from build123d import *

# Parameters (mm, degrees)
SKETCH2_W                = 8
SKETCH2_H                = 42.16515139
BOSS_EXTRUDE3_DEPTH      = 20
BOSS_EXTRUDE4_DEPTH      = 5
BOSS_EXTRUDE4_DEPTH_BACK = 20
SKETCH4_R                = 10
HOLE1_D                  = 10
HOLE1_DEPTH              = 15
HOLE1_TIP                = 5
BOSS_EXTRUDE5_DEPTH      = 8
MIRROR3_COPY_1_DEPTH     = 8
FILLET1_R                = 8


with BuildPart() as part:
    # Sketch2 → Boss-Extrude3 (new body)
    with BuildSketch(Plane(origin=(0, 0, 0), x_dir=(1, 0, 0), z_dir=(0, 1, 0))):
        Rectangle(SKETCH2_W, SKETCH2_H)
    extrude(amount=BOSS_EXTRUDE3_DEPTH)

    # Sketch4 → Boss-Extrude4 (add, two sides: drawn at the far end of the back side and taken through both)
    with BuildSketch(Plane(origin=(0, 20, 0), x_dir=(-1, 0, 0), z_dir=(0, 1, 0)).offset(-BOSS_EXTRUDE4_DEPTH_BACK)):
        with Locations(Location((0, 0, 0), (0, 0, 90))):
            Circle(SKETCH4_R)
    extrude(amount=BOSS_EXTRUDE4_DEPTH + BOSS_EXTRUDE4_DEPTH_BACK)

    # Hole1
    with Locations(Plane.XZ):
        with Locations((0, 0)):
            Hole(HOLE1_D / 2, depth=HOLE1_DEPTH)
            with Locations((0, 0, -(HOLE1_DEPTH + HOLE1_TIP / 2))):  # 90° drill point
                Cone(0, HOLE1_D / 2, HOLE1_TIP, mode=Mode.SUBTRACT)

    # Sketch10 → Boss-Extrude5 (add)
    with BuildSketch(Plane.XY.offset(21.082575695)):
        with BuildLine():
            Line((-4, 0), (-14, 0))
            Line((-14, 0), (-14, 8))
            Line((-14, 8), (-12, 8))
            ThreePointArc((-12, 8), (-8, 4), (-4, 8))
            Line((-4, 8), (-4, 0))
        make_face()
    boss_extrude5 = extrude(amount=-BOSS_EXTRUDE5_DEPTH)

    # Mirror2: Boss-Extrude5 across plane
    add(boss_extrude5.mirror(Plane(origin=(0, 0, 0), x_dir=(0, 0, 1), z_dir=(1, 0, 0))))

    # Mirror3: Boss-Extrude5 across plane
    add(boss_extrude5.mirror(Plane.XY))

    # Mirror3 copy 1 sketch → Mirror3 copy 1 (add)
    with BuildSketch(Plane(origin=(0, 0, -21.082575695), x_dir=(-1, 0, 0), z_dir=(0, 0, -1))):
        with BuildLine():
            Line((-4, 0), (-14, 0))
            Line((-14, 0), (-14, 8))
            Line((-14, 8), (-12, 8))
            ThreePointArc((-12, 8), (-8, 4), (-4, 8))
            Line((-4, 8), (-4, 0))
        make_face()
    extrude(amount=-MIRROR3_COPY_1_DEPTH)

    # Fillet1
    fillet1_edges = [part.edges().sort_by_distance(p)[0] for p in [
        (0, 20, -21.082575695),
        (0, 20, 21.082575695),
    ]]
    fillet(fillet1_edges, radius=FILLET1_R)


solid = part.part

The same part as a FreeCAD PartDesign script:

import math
import FreeCAD as App
import Part
import Sketcher
Q = App.Units.Quantity


def edges_at(feature, points):
    """Names of the edges that pass closest to the given points."""
    edges = feature.Shape.Edges
    near = lambda p: min(range(len(edges)), key=lambda i: edges[i].distToShape(Part.Vertex(*p))[0])
    return sorted({f"Edge{near(p) + 1}" for p in points})

doc = App.newDocument("Part")
params = doc.addObject("Spreadsheet::Sheet", "Params")
for row, (alias, value) in enumerate([
    ("sketch1_width", "8 mm"),
    ("pad1_length", "20 mm"),
    ("sketch2_diameter", "20 mm"),
    ("pad2_length", "5 mm"),
    ("pad2_length2", "20 mm"),
    ("sketch3_diameter", "10 mm"),
    ("hole_diameter", "10 mm"),
    ("hole_depth", "15 mm"),
    ("sketch4_radius", "4 mm"),
    ("sketch4_width", "10 mm"),
    ("sketch4_height", "8 mm"),
    ("pad3_length", "8 mm"),
    ("sketch5_radius", "4 mm"),
    ("sketch5_width", "10 mm"),
    ("sketch5_height", "8 mm"),
    ("pad4_length", "8 mm"),
    ("fillet_radius", "8 mm"),
], start=1):
    params.set(f"A{row}", alias)
    params.set(f"B{row}", "=" + value)
    params.setAlias(f"B{row}", alias)

body = doc.addObject("PartDesign::Body", "Body")

sketch1 = doc.addObject("Sketcher::SketchObject", "Sketch")
body.addObject(sketch1)
sketch1.AttachmentSupport = (doc.XZ_Plane, [""])
sketch1.MapMode = "FlatFace"
sketch1.addGeometry(Part.LineSegment(App.Vector(-4, -21.082576, 0), App.Vector(-4, 21.082576, 0)), False)
sketch1.addGeometry(Part.LineSegment(App.Vector(-4, 21.082576, 0), App.Vector(4, 21.082576, 0)), False)
sketch1.addGeometry(Part.LineSegment(App.Vector(4, 21.082576, 0), App.Vector(4, -21.082576, 0)), False)
sketch1.addGeometry(Part.LineSegment(App.Vector(4, -21.082576, 0), App.Vector(-4, -21.082576, 0)), False)
sketch1.addConstraint(Sketcher.Constraint("Coincident", 0, 2, 1, 1))
sketch1.addConstraint(Sketcher.Constraint("Coincident", 1, 2, 2, 1))
sketch1.addConstraint(Sketcher.Constraint("Coincident", 2, 2, 3, 1))
sketch1.addConstraint(Sketcher.Constraint("Coincident", 3, 2, 0, 1))
sketch1.addConstraint(Sketcher.Constraint("Vertical", 0))
sketch1.addConstraint(Sketcher.Constraint("Horizontal", 1))
sketch1.addConstraint(Sketcher.Constraint("Vertical", 2))
sketch1.addConstraint(Sketcher.Constraint("Horizontal", 3))
sketch1.addConstraint(Sketcher.Constraint("Symmetric", 0, 2, 2, 2, -1, 1))
sketch1.addConstraint(Sketcher.Constraint("DistanceX", 1, 1, 1, 2, Q("8 mm")))
sketch1.addConstraint(Sketcher.Constraint("DistanceY", 0, 1, 0, 2, Q("42.165151 mm")))
sketch1.setExpression("Constraints[9]", "Params.sketch1_width")
pad1 = doc.addObject("PartDesign::Pad", "Pad")
body.addObject(pad1)
pad1.Profile = sketch1
pad1.setExpression("Length", "Params.pad1_length")
pad1.Reversed = True

sketch2 = doc.addObject("Sketcher::SketchObject", "Sketch001")
body.addObject(sketch2)
sketch2.AttachmentSupport = (doc.XZ_Plane, [""])
sketch2.MapMode = "FlatFace"
sketch2.AttachmentOffset = App.Placement(App.Vector(0, 0, -20), App.Rotation())
sketch2.addGeometry(Part.Circle(App.Vector(0, 0, 0), App.Vector(0, 0, 1), 10), False)
sketch2.addConstraint(Sketcher.Constraint("Coincident", 0, 3, -1, 1))
sketch2.addConstraint(Sketcher.Constraint("Diameter", 0, Q("20 mm")))
sketch2.setExpression("Constraints[1]", "Params.sketch2_diameter")
pad2 = doc.addObject("PartDesign::Pad", "Pad001")
body.addObject(pad2)
pad2.Profile = sketch2
pad2.Type = "TwoLengths"
pad2.setExpression("Length", "Params.pad2_length")
pad2.setExpression("Length2", "Params.pad2_length2")
pad2.Reversed = True

sketch3 = doc.addObject("Sketcher::SketchObject", "Sketch002")
body.addObject(sketch3)
sketch3.AttachmentSupport = (doc.XZ_Plane, [""])
sketch3.MapMode = "FlatFace"
sketch3.addGeometry(Part.Circle(App.Vector(0, 0, 0), App.Vector(0, 0, 1), 5), False)
sketch3.addConstraint(Sketcher.Constraint("Coincident", 0, 3, -1, 1))
sketch3.addConstraint(Sketcher.Constraint("Diameter", 0, Q("10 mm")))
sketch3.setExpression("Constraints[1]", "Params.sketch3_diameter")
doc.recompute()
hole = doc.addObject("PartDesign::Hole", "Hole")
body.addObject(hole)
hole.Profile = sketch3
hole.ThreadType = "None"
hole.setExpression("Diameter", "Params.hole_diameter")
hole.DepthType = "Dimension"
hole.setExpression("Depth", "Params.hole_depth")
hole.DrillPoint = "Angled"
hole.DrillPointAngle = 90

sketch4 = doc.addObject("Sketcher::SketchObject", "Sketch003")
body.addObject(sketch4)
sketch4.AttachmentSupport = (doc.XY_Plane, [""])
sketch4.MapMode = "FlatFace"
sketch4.AttachmentOffset = App.Placement(App.Vector(0, 0, 21.082576), App.Rotation())
sketch4.addGeometry(Part.LineSegment(App.Vector(-14, 0, 0), App.Vector(-4, 0, 0)), False)
sketch4.addGeometry(Part.LineSegment(App.Vector(-4, 0, 0), App.Vector(-4, 8, 0)), False)
sketch4.addGeometry(Part.ArcOfCircle(Part.Circle(App.Vector(-8, 8, 0), App.Vector(0, 0, 1), 4), math.radians(180), math.radians(360)), False)
sketch4.addGeometry(Part.LineSegment(App.Vector(-12, 8, 0), App.Vector(-14, 8, 0)), False)
sketch4.addGeometry(Part.LineSegment(App.Vector(-14, 8, 0), App.Vector(-14, 0, 0)), False)
sketch4.addConstraint(Sketcher.Constraint("Coincident", 0, 2, 1, 1))
sketch4.addConstraint(Sketcher.Constraint("Tangent", 1, 2, 2, 2))
sketch4.addConstraint(Sketcher.Constraint("Coincident", 2, 1, 3, 1))
sketch4.addConstraint(Sketcher.Constraint("Coincident", 3, 2, 4, 1))
sketch4.addConstraint(Sketcher.Constraint("Coincident", 4, 2, 0, 1))
sketch4.addConstraint(Sketcher.Constraint("Horizontal", 0))
sketch4.addConstraint(Sketcher.Constraint("Vertical", 1))
sketch4.addConstraint(Sketcher.Constraint("Horizontal", 3))
sketch4.addConstraint(Sketcher.Constraint("Vertical", 4))
sketch4.addConstraint(Sketcher.Constraint("PointOnObject", 0, 2, -1))
sketch4.addConstraint(Sketcher.Constraint("Horizontal", 1, 2, 2, 1))
sketch4.addConstraint(Sketcher.Constraint("Radius", 2, Q("4 mm")))
sketch4.addConstraint(Sketcher.Constraint("DistanceX", 0, 1, 0, 2, Q("10 mm")))
sketch4.addConstraint(Sketcher.Constraint("DistanceY", 1, 1, 1, 2, Q("8 mm")))
sketch4.addConstraint(Sketcher.Constraint("DistanceX", 2, 3, -1, 1, Q("8 mm")))
sketch4.setExpression("Constraints[11]", "Params.sketch4_radius")
sketch4.setExpression("Constraints[12]", "Params.sketch4_width")
sketch4.setExpression("Constraints[13]", "Params.sketch4_height")
pad3 = doc.addObject("PartDesign::Pad", "Pad002")
body.addObject(pad3)
pad3.Profile = sketch4
pad3.setExpression("Length", "Params.pad3_length")
pad3.Reversed = True
doc.recompute()

mirrored = doc.addObject("PartDesign::Mirrored", "Mirrored")
body.addObject(mirrored)
mirrored.Originals = [pad3]
mirrored.MirrorPlane = (doc.YZ_Plane, [""])
body.Tip = mirrored
doc.recompute()

mirrored2 = doc.addObject("PartDesign::Mirrored", "Mirrored001")
body.addObject(mirrored2)
mirrored2.Originals = [pad3]
mirrored2.MirrorPlane = (doc.XY_Plane, [""])
body.Tip = mirrored2

sketch5 = doc.addObject("Sketcher::SketchObject", "Sketch004")
body.addObject(sketch5)
sketch5.AttachmentSupport = (doc.XY_Plane, [""])
sketch5.MapMode = "FlatFace"
sketch5.AttachmentOffset = App.Placement(App.Vector(0, 0, -21.082576), App.Rotation())
sketch5.addGeometry(Part.LineSegment(App.Vector(14, 0, 0), App.Vector(4, 0, 0)), False)
sketch5.addGeometry(Part.LineSegment(App.Vector(4, 0, 0), App.Vector(4, 8, 0)), False)
sketch5.addGeometry(Part.ArcOfCircle(Part.Circle(App.Vector(8, 8, 0), App.Vector(0, 0, 1), 4), math.radians(180), math.radians(360)), False)
sketch5.addGeometry(Part.LineSegment(App.Vector(12, 8, 0), App.Vector(14, 8, 0)), False)
sketch5.addGeometry(Part.LineSegment(App.Vector(14, 8, 0), App.Vector(14, 0, 0)), False)
sketch5.addConstraint(Sketcher.Constraint("Coincident", 0, 2, 1, 1))
sketch5.addConstraint(Sketcher.Constraint("Tangent", 1, 2, 2, 1))
sketch5.addConstraint(Sketcher.Constraint("Coincident", 2, 2, 3, 1))
sketch5.addConstraint(Sketcher.Constraint("Coincident", 3, 2, 4, 1))
sketch5.addConstraint(Sketcher.Constraint("Coincident", 4, 2, 0, 1))
sketch5.addConstraint(Sketcher.Constraint("Horizontal", 0))
sketch5.addConstraint(Sketcher.Constraint("Vertical", 1))
sketch5.addConstraint(Sketcher.Constraint("Horizontal", 3))
sketch5.addConstraint(Sketcher.Constraint("Vertical", 4))
sketch5.addConstraint(Sketcher.Constraint("PointOnObject", 0, 2, -1))
sketch5.addConstraint(Sketcher.Constraint("Horizontal", 1, 2, 2, 2))
sketch5.addConstraint(Sketcher.Constraint("Radius", 2, Q("4 mm")))
sketch5.addConstraint(Sketcher.Constraint("DistanceX", 0, 2, 0, 1, Q("10 mm")))
sketch5.addConstraint(Sketcher.Constraint("DistanceY", 1, 1, 1, 2, Q("8 mm")))
sketch5.addConstraint(Sketcher.Constraint("DistanceX", -1, 1, 2, 3, Q("8 mm")))
sketch5.setExpression("Constraints[11]", "Params.sketch5_radius")
sketch5.setExpression("Constraints[12]", "Params.sketch5_width")
sketch5.setExpression("Constraints[13]", "Params.sketch5_height")
pad4 = doc.addObject("PartDesign::Pad", "Pad003")
body.addObject(pad4)
pad4.Profile = sketch5
pad4.setExpression("Length", "Params.pad4_length")
doc.recompute()

fillet = doc.addObject("PartDesign::Fillet", "Fillet")
body.addObject(fillet)
fillet.Base = (pad4, edges_at(pad4, [(0, 20, -21.083), (0, 20, 21.083)]))
fillet.setExpression("Radius", "Params.fillet_radius")

doc.recompute()
